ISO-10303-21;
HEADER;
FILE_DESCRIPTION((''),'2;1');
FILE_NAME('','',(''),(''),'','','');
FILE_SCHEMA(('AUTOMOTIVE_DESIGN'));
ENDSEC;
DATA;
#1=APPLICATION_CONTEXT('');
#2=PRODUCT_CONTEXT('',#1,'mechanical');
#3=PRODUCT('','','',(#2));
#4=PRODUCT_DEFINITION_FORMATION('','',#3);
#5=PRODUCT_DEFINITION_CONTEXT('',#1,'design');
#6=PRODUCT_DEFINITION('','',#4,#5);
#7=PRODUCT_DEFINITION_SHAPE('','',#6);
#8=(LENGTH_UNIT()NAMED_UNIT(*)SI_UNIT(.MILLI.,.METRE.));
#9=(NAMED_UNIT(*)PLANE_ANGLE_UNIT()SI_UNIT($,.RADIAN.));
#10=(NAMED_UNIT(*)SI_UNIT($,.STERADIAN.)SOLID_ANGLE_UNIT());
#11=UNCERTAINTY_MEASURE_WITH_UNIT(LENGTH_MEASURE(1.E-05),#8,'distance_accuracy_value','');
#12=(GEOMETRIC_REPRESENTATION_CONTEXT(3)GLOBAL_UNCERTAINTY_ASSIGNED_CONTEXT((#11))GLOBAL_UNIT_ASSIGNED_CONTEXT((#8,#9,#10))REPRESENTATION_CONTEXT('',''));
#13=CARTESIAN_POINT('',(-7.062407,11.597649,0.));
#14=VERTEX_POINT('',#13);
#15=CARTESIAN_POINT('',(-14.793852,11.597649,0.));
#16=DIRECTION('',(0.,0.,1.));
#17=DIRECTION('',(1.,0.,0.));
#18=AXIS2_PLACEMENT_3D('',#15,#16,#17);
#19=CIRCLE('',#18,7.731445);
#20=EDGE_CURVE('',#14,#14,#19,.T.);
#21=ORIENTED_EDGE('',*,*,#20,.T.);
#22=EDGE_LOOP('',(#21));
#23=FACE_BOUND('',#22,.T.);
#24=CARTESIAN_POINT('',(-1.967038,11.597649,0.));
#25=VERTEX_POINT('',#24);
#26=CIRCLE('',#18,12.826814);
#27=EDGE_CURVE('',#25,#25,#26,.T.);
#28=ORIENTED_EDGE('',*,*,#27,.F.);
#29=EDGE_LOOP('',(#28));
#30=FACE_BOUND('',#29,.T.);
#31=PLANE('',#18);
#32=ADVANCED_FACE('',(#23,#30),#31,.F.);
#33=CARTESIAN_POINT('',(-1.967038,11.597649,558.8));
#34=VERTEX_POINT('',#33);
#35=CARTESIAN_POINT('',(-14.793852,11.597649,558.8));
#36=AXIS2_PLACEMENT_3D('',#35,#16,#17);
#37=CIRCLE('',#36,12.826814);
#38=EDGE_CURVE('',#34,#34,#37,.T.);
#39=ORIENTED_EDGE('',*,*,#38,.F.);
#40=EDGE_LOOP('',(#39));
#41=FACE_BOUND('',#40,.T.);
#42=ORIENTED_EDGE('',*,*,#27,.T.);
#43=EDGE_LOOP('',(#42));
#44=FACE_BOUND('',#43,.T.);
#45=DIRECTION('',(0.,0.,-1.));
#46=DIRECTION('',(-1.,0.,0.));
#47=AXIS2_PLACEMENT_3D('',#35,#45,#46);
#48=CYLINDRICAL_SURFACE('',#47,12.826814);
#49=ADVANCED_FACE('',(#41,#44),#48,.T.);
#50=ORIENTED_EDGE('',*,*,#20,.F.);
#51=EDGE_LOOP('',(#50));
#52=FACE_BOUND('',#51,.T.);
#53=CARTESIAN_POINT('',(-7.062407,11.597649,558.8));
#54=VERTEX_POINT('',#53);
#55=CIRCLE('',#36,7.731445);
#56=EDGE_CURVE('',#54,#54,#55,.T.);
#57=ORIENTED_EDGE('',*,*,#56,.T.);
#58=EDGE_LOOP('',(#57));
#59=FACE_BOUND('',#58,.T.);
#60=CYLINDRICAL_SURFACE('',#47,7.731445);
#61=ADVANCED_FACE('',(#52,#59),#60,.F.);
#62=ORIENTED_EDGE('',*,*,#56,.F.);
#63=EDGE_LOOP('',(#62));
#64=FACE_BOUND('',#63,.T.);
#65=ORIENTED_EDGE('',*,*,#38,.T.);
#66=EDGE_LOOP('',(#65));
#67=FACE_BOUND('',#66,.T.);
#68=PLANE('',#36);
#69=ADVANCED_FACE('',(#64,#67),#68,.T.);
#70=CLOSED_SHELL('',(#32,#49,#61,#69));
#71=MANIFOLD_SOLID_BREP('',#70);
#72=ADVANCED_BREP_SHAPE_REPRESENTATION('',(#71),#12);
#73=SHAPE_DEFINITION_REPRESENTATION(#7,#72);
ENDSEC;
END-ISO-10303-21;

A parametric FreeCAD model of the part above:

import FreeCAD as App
import Part
import Sketcher
Q = App.Units.Quantity

doc = App.newDocument("Part")
body = doc.addObject("PartDesign::Body", "Body")

# Sketch on XY plane
sketch1 = body.newObject("Sketcher::SketchObject", "Sketch")
sketch1.AttachmentSupport = (doc.getObject("XY_Plane"), [""])
sketch1.MapMode = "FlatFace"
sketch1.addGeometry([
    Part.Circle(App.Vector(-15, 12, 0), App.Vector(0, 0, 1), 13),
    Part.Circle(App.Vector(-15, 12, 0), App.Vector(0, 0, 1), 8),
], False)
sketch1.addConstraint([
    Sketcher.Constraint("Coincident", 1, 3, 0, 3),
    Sketcher.Constraint("Diameter", 1, 15.462891),
    Sketcher.Constraint("Diameter", 0, 25.653628),
    Sketcher.Constraint("DistanceX", 0, 3, -1, 1, 14.793852),
    Sketcher.Constraint("DistanceY", -1, 1, 0, 3, 11.597649),
])
pad1 = body.newObject("PartDesign::Pad", "Pad")
pad1.Profile = sketch1
pad1.Length = Q("22 in")

doc.recompute()
